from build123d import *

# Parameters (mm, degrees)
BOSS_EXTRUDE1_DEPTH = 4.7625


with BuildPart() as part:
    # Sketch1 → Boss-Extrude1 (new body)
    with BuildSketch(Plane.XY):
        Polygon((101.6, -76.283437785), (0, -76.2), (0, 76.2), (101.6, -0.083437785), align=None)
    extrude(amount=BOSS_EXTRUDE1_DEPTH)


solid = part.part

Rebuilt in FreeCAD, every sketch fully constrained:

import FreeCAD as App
import Part
import Sketcher
from FreeCAD import Vector
Q = App.Units.Quantity

doc = App.newDocument("Part")
params = doc.addObject("Spreadsheet::Sheet", "Params")
for row, (alias, value) in enumerate([
    ("sketch1_height", "3 in"),
    ("sketch1_height2", "6 in"),
    ("pad1_length", "0.1875 in"),
], start=1):
    params.set(f"A{row}", alias)
    params.set(f"B{row}", "=" + value)
    params.setAlias(f"B{row}", alias)

body = doc.addObject("PartDesign::Body", "Body")

sketch1 = doc.addObject("Sketcher::SketchObject", "Sketch")
body.addObject(sketch1)
sketch1.AttachmentSupport = (doc.XY_Plane, [""])
sketch1.MapMode = "FlatFace"
sketch1.addGeometry([
    Part.LineSegment(Vector(0, -76, 0), Vector(102, -76, 0)),
    Part.LineSegment(Vector(102, -76, 0), Vector(102, 0, 0)),
    Part.LineSegment(Vector(102, 0, 0), Vector(0, 76, 0)),
    Part.LineSegment(Vector(0, 76, 0), Vector(0, -76, 0)),
], False)
sketch1.addConstraint([
    Sketcher.Constraint("Coincident", 0, 2, 1, 1),
    Sketcher.Constraint("Coincident", 1, 2, 2, 1),
    Sketcher.Constraint("Coincident", 2, 2, 3, 1),
    Sketcher.Constraint("Coincident", 3, 2, 0, 1),
    Sketcher.Constraint("Vertical", 1),
    Sketcher.Constraint("Vertical", 3),
    Sketcher.Constraint("Symmetric", 2, 2, 3, 2, -1, 1),
    Sketcher.Constraint("DistanceY", 1, 1, 1, 2, Q("3 in")),
    Sketcher.Constraint("DistanceY", 3, 2, 3, 1, Q("6 in")),
    Sketcher.Constraint("DistanceX", -1, 1, 0, 2, Q("4 in")),
    Sketcher.Constraint("Angle", 2, Q("143.1 deg")),
])
sketch1.setExpression("Constraints[7]", "Params.sketch1_height")
sketch1.setExpression("Constraints[8]", "Params.sketch1_height2")
pad1 = doc.addObject("PartDesign::Pad", "Pad")
body.addObject(pad1)
pad1.Profile = sketch1
pad1.setExpression("Length", "Params.pad1_length")

doc.recompute()
